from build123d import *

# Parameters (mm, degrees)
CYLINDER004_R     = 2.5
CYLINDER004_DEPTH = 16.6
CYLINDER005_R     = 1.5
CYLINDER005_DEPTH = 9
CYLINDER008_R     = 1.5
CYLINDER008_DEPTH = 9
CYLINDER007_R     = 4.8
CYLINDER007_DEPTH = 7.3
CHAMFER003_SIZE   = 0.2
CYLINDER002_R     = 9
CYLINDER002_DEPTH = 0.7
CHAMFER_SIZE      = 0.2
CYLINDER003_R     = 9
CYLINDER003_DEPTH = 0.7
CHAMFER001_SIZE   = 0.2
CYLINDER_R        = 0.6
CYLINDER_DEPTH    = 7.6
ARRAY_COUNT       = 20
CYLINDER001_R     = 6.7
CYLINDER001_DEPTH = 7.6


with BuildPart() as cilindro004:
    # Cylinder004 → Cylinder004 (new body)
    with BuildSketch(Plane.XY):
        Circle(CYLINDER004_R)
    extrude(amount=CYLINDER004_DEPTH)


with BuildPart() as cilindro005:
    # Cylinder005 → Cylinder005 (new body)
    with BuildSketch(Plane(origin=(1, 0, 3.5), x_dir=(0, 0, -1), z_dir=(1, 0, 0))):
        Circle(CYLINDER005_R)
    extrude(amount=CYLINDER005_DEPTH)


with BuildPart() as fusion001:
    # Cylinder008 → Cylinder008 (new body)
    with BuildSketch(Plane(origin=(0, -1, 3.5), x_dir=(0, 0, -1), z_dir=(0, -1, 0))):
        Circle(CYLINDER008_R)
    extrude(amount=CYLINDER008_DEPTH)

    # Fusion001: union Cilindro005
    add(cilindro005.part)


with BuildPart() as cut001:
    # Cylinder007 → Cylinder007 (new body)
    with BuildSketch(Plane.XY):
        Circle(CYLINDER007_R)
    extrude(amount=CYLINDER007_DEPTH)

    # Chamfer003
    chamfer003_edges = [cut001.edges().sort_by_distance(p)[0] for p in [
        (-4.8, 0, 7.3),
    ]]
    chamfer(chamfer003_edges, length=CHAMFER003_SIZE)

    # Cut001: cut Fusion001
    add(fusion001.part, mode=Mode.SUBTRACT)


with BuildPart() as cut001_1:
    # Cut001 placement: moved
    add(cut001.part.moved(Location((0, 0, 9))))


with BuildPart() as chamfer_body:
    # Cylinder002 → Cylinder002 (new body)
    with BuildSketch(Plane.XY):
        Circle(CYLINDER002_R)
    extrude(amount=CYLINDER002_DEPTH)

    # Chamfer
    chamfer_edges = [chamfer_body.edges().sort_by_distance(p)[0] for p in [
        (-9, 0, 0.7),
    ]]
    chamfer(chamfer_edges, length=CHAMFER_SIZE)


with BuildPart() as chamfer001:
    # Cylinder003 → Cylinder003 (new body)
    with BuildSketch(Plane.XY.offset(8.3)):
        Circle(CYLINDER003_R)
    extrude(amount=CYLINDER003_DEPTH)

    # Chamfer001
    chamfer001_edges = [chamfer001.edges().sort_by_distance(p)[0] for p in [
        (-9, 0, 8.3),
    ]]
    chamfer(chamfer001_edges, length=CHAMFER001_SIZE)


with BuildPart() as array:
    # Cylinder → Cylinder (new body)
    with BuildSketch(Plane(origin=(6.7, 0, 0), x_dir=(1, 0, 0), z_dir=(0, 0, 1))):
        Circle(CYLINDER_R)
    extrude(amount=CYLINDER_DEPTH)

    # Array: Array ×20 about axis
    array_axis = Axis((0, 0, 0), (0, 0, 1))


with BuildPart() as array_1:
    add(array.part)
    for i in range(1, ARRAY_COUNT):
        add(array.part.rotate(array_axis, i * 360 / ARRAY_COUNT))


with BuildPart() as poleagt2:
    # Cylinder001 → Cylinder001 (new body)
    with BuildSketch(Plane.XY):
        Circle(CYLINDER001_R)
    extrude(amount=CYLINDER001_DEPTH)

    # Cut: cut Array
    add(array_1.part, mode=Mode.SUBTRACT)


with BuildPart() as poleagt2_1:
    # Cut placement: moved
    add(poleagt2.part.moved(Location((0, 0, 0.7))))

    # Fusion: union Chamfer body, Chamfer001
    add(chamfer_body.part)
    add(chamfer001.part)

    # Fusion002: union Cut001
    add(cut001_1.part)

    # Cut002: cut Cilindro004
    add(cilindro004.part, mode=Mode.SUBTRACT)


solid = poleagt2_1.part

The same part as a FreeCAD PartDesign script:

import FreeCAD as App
import Part
import Sketcher

V = App.Vector


def edges_at(feature, points):
    """Names of the edges that pass closest to the given points."""
    edges = feature.Shape.Edges
    near = lambda p: min(range(len(edges)), key=lambda i: edges[i].distToShape(Part.Vertex(*p))[0])
    return sorted({f"Edge{near(p) + 1}" for p in points})

doc = App.newDocument("Part")
params = doc.addObject("Spreadsheet::Sheet", "Params")
for row, (alias, value) in enumerate([
    ("sketch1_diameter", "5 mm"),
    ("pad1_length", "16.6 mm"),
    ("sketch2_diameter", "3 mm"),
    ("pad2_length", "9 mm"),
    ("sketch3_diameter", "3 mm"),
    ("pad3_length", "9 mm"),
    ("sketch4_diameter", "9.6 mm"),
    ("pad4_length", "7.3 mm"),
    ("chamfer_size", "0.2 mm"),
    ("sketch5_diameter", "18 mm"),
    ("pad5_length", "0.7 mm"),
    ("chamfer2_size", "0.2 mm"),
    ("sketch6_diameter", "18 mm"),
    ("pad6_length", "0.7 mm"),
    ("chamfer3_size", "0.2 mm"),
    ("sketch7_diameter", "1.2 mm"),
    ("pad7_length", "7.6 mm"),
    ("sketch8_diameter", "13.4 mm"),
    ("pad8_length", "7.6 mm"),
], start=1):
    params.set(f"A{row}", alias)
    params.set(f"B{row}", "=" + value)
    params.setAlias(f"B{row}", alias)

body = doc.addObject("PartDesign::Body", "Body")

sketch1 = doc.addObject("Sketcher::SketchObject", "Sketch")
body.addObject(sketch1)
sketch1.AttachmentSupport = (doc.XY_Plane, [""])
sketch1.MapMode = "FlatFace"
sketch1.addGeometry(Part.Circle(V(0, 0, 0), V(0, 0, 1), 2.5), False)
sketch1.addConstraint([
    Sketcher.Constraint("Coincident", 0, 3, -1, 1),
    Sketcher.Constraint("Diameter", 0, 5.0),
])
sketch1.setExpression("Constraints[1]", "Params.sketch1_diameter")
pad1 = doc.addObject("PartDesign::Pad", "Pad")
body.addObject(pad1)
pad1.Profile = sketch1
pad1.setExpression("Length", "Params.pad1_length")
body2 = doc.addObject("PartDesign::Body", "Body001")

sketch2 = doc.addObject("Sketcher::SketchObject", "Sketch001")
body2.addObject(sketch2)
sketch2.AttachmentSupport = (doc.getObject("YZ_Plane001"), [""])
sketch2.MapMode = "FlatFace"
sketch2.AttachmentOffset = App.Placement(V(0, 0, 1), App.Rotation())
sketch2.addGeometry(Part.Circle(V(0, 3.5, 0), V(0, 0, 1), 1.5), False)
sketch2.addConstraint([
    Sketcher.Constraint("PointOnObject", 0, 3, -2),
    Sketcher.Constraint("Diameter", 0, 3.0),
    Sketcher.Constraint("DistanceY", -1, 1, 0, 3, 3.5),
])
sketch2.setExpression("Constraints[1]", "Params.sketch2_diameter")
pad2 = doc.addObject("PartDesign::Pad", "Pad001")
body2.addObject(pad2)
pad2.Profile = sketch2
pad2.setExpression("Length", "Params.pad2_length")
body3 = doc.addObject("PartDesign::Body", "Body002")

sketch3 = doc.addObject("Sketcher::SketchObject", "Sketch002")
body3.addObject(sketch3)
sketch3.AttachmentSupport = (doc.getObject("XZ_Plane002"), [""])
sketch3.MapMode = "FlatFace"
sketch3.AttachmentOffset = App.Placement(V(0, 0, 1), App.Rotation())
sketch3.addGeometry(Part.Circle(V(0, 3.5, 0), V(0, 0, 1), 1.5), False)
sketch3.addConstraint([
    Sketcher.Constraint("PointOnObject", 0, 3, -2),
    Sketcher.Constraint("Diameter", 0, 3.0),
    Sketcher.Constraint("DistanceY", -1, 1, 0, 3, 3.5),
])
sketch3.setExpression("Constraints[1]", "Params.sketch3_diameter")
pad3 = doc.addObject("PartDesign::Pad", "Pad002")
body3.addObject(pad3)
pad3.Profile = sketch3
pad3.setExpression("Length", "Params.pad3_length")
doc.recompute()

boolean = doc.addObject("PartDesign::Boolean", "Boolean")
body3.addObject(boolean)
boolean.Type = "Fuse"
boolean.addObjects([body2])
body4 = doc.addObject("PartDesign::Body", "Body003")

sketch4 = doc.addObject("Sketcher::SketchObject", "Sketch003")
body4.addObject(sketch4)
sketch4.AttachmentSupport = (doc.getObject("XY_Plane003"), [""])
sketch4.MapMode = "FlatFace"
sketch4.addGeometry(Part.Circle(V(0, 0, 0), V(0, 0, 1), 4.8), False)
sketch4.addConstraint([
    Sketcher.Constraint("Coincident", 0, 3, -1, 1),
    Sketcher.Constraint("Diameter", 0, 9.6),
])
sketch4.setExpression("Constraints[1]", "Params.sketch4_diameter")
pad4 = doc.addObject("PartDesign::Pad", "Pad003")
body4.addObject(pad4)
pad4.Profile = sketch4
pad4.setExpression("Length", "Params.pad4_length")
doc.recompute()

chamfer = doc.addObject("PartDesign::Chamfer", "Chamfer")
body4.addObject(chamfer)
chamfer.Base = (pad4, edges_at(pad4, [(-4.8, 0, 7.3)]))
chamfer.setExpression("Size", "Params.chamfer_size")
doc.recompute()

boolean2 = doc.addObject("PartDesign::Boolean", "Boolean001")
body4.addObject(boolean2)
boolean2.Type = "Cut"
boolean2.addObjects([body3])
body5 = doc.addObject("PartDesign::Body", "Body004")
doc.recompute()

body4.Placement = App.Placement(V(0, 0, 9), App.Rotation(V(0, 0, 1), 0))
boolean3 = doc.addObject("PartDesign::Boolean", "Boolean002")
body5.addObject(boolean3)
boolean3.Type = "Fuse"
boolean3.addObjects([body4])
body6 = doc.addObject("PartDesign::Body", "Body005")

sketch5 = doc.addObject("Sketcher::SketchObject", "Sketch004")
body6.addObject(sketch5)
sketch5.AttachmentSupport = (doc.getObject("XY_Plane005"), [""])
sketch5.MapMode = "FlatFace"
sketch5.addGeometry(Part.Circle(V(0, 0, 0), V(0, 0, 1), 9), False)
sketch5.addConstraint([
    Sketcher.Constraint("Coincident", 0, 3, -1, 1),
    Sketcher.Constraint("Diameter", 0, 18.0),
])
sketch5.setExpression("Constraints[1]", "Params.sketch5_diameter")
pad5 = doc.addObject("PartDesign::Pad", "Pad004")
body6.addObject(pad5)
pad5.Profile = sketch5
pad5.setExpression("Length", "Params.pad5_length")
doc.recompute()

chamfer2 = doc.addObject("PartDesign::Chamfer", "Chamfer001")
body6.addObject(chamfer2)
chamfer2.Base = (pad5, edges_at(pad5, [(-9, 0, 0.7)]))
chamfer2.setExpression("Size", "Params.chamfer2_size")
body7 = doc.addObject("PartDesign::Body", "Body006")

sketch6 = doc.addObject("Sketcher::SketchObject", "Sketch005")
body7.addObject(sketch6)
sketch6.AttachmentSupport = (doc.getObject("XY_Plane006"), [""])
sketch6.MapMode = "FlatFace"
sketch6.AttachmentOffset = App.Placement(V(0, 0, 8.3), App.Rotation())
sketch6.addGeometry(Part.Circle(V(0, 0, 0), V(0, 0, 1), 9), False)
sketch6.addConstraint([
    Sketcher.Constraint("Coincident", 0, 3, -1, 1),
    Sketcher.Constraint("Diameter", 0, 18.0),
])
sketch6.setExpression("Constraints[1]", "Params.sketch6_diameter")
pad6 = doc.addObject("PartDesign::Pad", "Pad005")
body7.addObject(pad6)
pad6.Profile = sketch6
pad6.setExpression("Length", "Params.pad6_length")
doc.recompute()

chamfer3 = doc.addObject("PartDesign::Chamfer", "Chamfer002")
body7.addObject(chamfer3)
chamfer3.Base = (pad6, edges_at(pad6, [(-9, 0, 8.3)]))
chamfer3.setExpression("Size", "Params.chamfer3_size")
body8 = doc.addObject("PartDesign::Body", "Body007")

sketch7 = doc.addObject("Sketcher::SketchObject", "Sketch006")
body8.addObject(sketch7)
sketch7.AttachmentSupport = (doc.getObject("XY_Plane007"), [""])
sketch7.MapMode = "FlatFace"
sketch7.addGeometry(Part.Circle(V(6.7, 0, 0), V(0, 0, 1), 0.6), False)
sketch7.addConstraint([
    Sketcher.Constraint("PointOnObject", 0, 3, -1),
    Sketcher.Constraint("Diameter", 0, 1.2),
    Sketcher.Constraint("DistanceX", -1, 1, 0, 3, 6.7),
])
sketch7.setExpression("Constraints[1]", "Params.sketch7_diameter")
pad7 = doc.addObject("PartDesign::Pad", "Pad006")
body8.addObject(pad7)
pad7.Profile = sketch7
pad7.setExpression("Length", "Params.pad7_length")
body9 = doc.addObject("PartDesign::Body", "Body008")
body9.AllowCompound = True
doc.recompute()

body9.BaseFeature = body8
doc.recompute()

body10 = doc.addObject("PartDesign::Body", "Body009")
body10.BaseFeature = body8
body10.Placement = App.Placement(V(0, 0, 0), App.Rotation(V(0, 0, 1), 18))
boolean4 = doc.addObject("PartDesign::Boolean", "Boolean003")
body9.addObject(boolean4)
boolean4.Type = "Fuse"
boolean4.addObjects([body10])
doc.recompute()

body11 = doc.addObject("PartDesign::Body", "Body010")
body11.BaseFeature = body8
body11.Placement = App.Placement(V(0, 0, 0), App.Rotation(V(0, 0, 1), 36))
boolean5 = doc.addObject("PartDesign::Boolean", "Boolean004")
body9.addObject(boolean5)
boolean5.Type = "Fuse"
boolean5.addObjects([body11])
doc.recompute()

body12 = doc.addObject("PartDesign::Body", "Body011")
body12.BaseFeature = body8
body12.Placement = App.Placement(V(0, 0, 0), App.Rotation(V(0, 0, 1), 54))
boolean6 = doc.addObject("PartDesign::Boolean", "Boolean005")
body9.addObject(boolean6)
boolean6.Type = "Fuse"
boolean6.addObjects([body12])
doc.recompute()

body13 = doc.addObject("PartDesign::Body", "Body012")
body13.BaseFeature = body8
body13.Placement = App.Placement(V(0, 0, 0), App.Rotation(V(0, 0, 1), 72))
boolean7 = doc.addObject("PartDesign::Boolean", "Boolean006")
body9.addObject(boolean7)
boolean7.Type = "Fuse"
boolean7.addObjects([body13])
doc.recompute()

body14 = doc.addObject("PartDesign::Body", "Body013")
body14.BaseFeature = body8
body14.Placement = App.Placement(V(0, 0, 0), App.Rotation(V(0, 0, 1), 90))
boolean8 = doc.addObject("PartDesign::Boolean", "Boolean007")
body9.addObject(boolean8)
boolean8.Type = "Fuse"
boolean8.addObjects([body14])
doc.recompute()

body15 = doc.addObject("PartDesign::Body", "Body014")
body15.BaseFeature = body8
body15.Placement = App.Placement(V(0, 0, 0), App.Rotation(V(0, 0, 1), 108))
boolean9 = doc.addObject("PartDesign::Boolean", "Boolean008")
body9.addObject(boolean9)
boolean9.Type = "Fuse"
boolean9.addObjects([body15])
doc.recompute()

body16 = doc.addObject("PartDesign::Body", "Body015")
body16.BaseFeature = body8
body16.Placement = App.Placement(V(0, 0, 0), App.Rotation(V(0, 0, 1), 126))
boolean10 = doc.addObject("PartDesign::Boolean", "Boolean009")
body9.addObject(boolean10)
boolean10.Type = "Fuse"
boolean10.addObjects([body16])
doc.recompute()

body17 = doc.addObject("PartDesign::Body", "Body016")
body17.BaseFeature = body8
body17.Placement = App.Placement(V(0, 0, 0), App.Rotation(V(0, 0, 1), 144))
boolean11 = doc.addObject("PartDesign::Boolean", "Boolean010")
body9.addObject(boolean11)
boolean11.Type = "Fuse"
boolean11.addObjects([body17])
doc.recompute()

body18 = doc.addObject("PartDesign::Body", "Body017")
body18.BaseFeature = body8
body18.Placement = App.Placement(V(0, 0, 0), App.Rotation(V(0, 0, 1), 162))
boolean12 = doc.addObject("PartDesign::Boolean", "Boolean011")
body9.addObject(boolean12)
boolean12.Type = "Fuse"
boolean12.addObjects([body18])
doc.recompute()

body19 = doc.addObject("PartDesign::Body", "Body018")
body19.BaseFeature = body8
body19.Placement = App.Placement(V(0, 0, 0), App.Rotation(V(0, 0, 1), 180))
boolean13 = doc.addObject("PartDesign::Boolean", "Boolean012")
body9.addObject(boolean13)
boolean13.Type = "Fuse"
boolean13.addObjects([body19])
doc.recompute()

body20 = doc.addObject("PartDesign::Body", "Body019")
body20.BaseFeature = body8
body20.Placement = App.Placement(V(0, 0, 0), App.Rotation(V(0, 0, 1), 198))
boolean14 = doc.addObject("PartDesign::Boolean", "Boolean013")
body9.addObject(boolean14)
boolean14.Type = "Fuse"
boolean14.addObjects([body20])
doc.recompute()

body21 = doc.addObject("PartDesign::Body", "Body020")
body21.BaseFeature = body8
body21.Placement = App.Placement(V(0, 0, 0), App.Rotation(V(0, 0, 1), 216))
boolean15 = doc.addObject("PartDesign::Boolean", "Boolean014")
body9.addObject(boolean15)
boolean15.Type = "Fuse"
boolean15.addObjects([body21])
doc.recompute()

body22 = doc.addObject("PartDesign::Body", "Body021")
body22.BaseFeature = body8
body22.Placement = App.Placement(V(0, 0, 0), App.Rotation(V(0, 0, 1), 234))
boolean16 = doc.addObject("PartDesign::Boolean", "Boolean015")
body9.addObject(boolean16)
boolean16.Type = "Fuse"
boolean16.addObjects([body22])
doc.recompute()

body23 = doc.addObject("PartDesign::Body", "Body022")
body23.BaseFeature = body8
body23.Placement = App.Placement(V(0, 0, 0), App.Rotation(V(0, 0, 1), 252))
boolean17 = doc.addObject("PartDesign::Boolean", "Boolean016")
body9.addObject(boolean17)
boolean17.Type = "Fuse"
boolean17.addObjects([body23])
doc.recompute()

body24 = doc.addObject("PartDesign::Body", "Body023")
body24.BaseFeature = body8
body24.Placement = App.Placement(V(0, 0, 0), App.Rotation(V(0, 0, 1), 270))
boolean18 = doc.addObject("PartDesign::Boolean", "Boolean017")
body9.addObject(boolean18)
boolean18.Type = "Fuse"
boolean18.addObjects([body24])
doc.recompute()

body25 = doc.addObject("PartDesign::Body", "Body024")
body25.BaseFeature = body8
body25.Placement = App.Placement(V(0, 0, 0), App.Rotation(V(0, 0, 1), 288))
boolean19 = doc.addObject("PartDesign::Boolean", "Boolean018")
body9.addObject(boolean19)
boolean19.Type = "Fuse"
boolean19.addObjects([body25])
doc.recompute()

body26 = doc.addObject("PartDesign::Body", "Body025")
body26.BaseFeature = body8
body26.Placement = App.Placement(V(0, 0, 0), App.Rotation(V(0, 0, 1), 306))
boolean20 = doc.addObject("PartDesign::Boolean", "Boolean019")
body9.addObject(boolean20)
boolean20.Type = "Fuse"
boolean20.addObjects([body26])
doc.recompute()

body27 = doc.addObject("PartDesign::Body", "Body026")
body27.BaseFeature = body8
body27.Placement = App.Placement(V(0, 0, 0), App.Rotation(V(0, 0, 1), 324))
boolean21 = doc.addObject("PartDesign::Boolean", "Boolean020")
body9.addObject(boolean21)
boolean21.Type = "Fuse"
boolean21.addObjects([body27])
doc.recompute()

body8.Placement = App.Placement(V(0, 0, 0), App.Rotation(V(0, 0, 1), 342))
boolean22 = doc.addObject("PartDesign::Boolean", "Boolean021")
body9.addObject(boolean22)
boolean22.Type = "Fuse"
boolean22.addObjects([body8])
body28 = doc.addObject("PartDesign::Body", "Body027")

sketch8 = doc.addObject("Sketcher::SketchObject", "Sketch007")
body28.addObject(sketch8)
sketch8.AttachmentSupport = (doc.getObject("XY_Plane027"), [""])
sketch8.MapMode = "FlatFace"
sketch8.addGeometry(Part.Circle(V(0, 0, 0), V(0, 0, 1), 6.7), False)
sketch8.addConstraint([
    Sketcher.Constraint("Coincident", 0, 3, -1, 1),
    Sketcher.Constraint("Diameter", 0, 13.4),
])
sketch8.setExpression("Constraints[1]", "Params.sketch8_diameter")
pad8 = doc.addObject("PartDesign::Pad", "Pad007")
body28.addObject(pad8)
pad8.Profile = sketch8
pad8.setExpression("Length", "Params.pad8_length")
doc.recompute()

boolean23 = doc.addObject("PartDesign::Boolean", "Boolean022")
body28.addObject(boolean23)
boolean23.Type = "Cut"
boolean23.addObjects([body9])
body29 = doc.addObject("PartDesign::Body", "Body028")
doc.recompute()

body28.Placement = App.Placement(V(0, 0, 0.7), App.Rotation(V(0, 0, 1), 0))
boolean24 = doc.addObject("PartDesign::Boolean", "Boolean023")
body29.addObject(boolean24)
boolean24.Type = "Fuse"
boolean24.addObjects([body28])
doc.recompute()

boolean25 = doc.addObject("PartDesign::Boolean", "Boolean024")
body29.addObject(boolean25)
boolean25.Type = "Fuse"
boolean25.addObjects([body6])
doc.recompute()

boolean26 = doc.addObject("PartDesign::Boolean", "Boolean025")
body29.addObject(boolean26)
boolean26.Type = "Fuse"
boolean26.addObjects([body7])
doc.recompute()

boolean27 = doc.addObject("PartDesign::Boolean", "Boolean026")
body29.addObject(boolean27)
boolean27.Type = "Fuse"
boolean27.addObjects([body5])
doc.recompute()

boolean28 = doc.addObject("PartDesign::Boolean", "Boolean027")
body29.addObject(boolean28)
boolean28.Type = "Cut"
boolean28.addObjects([body])

doc.recompute()
